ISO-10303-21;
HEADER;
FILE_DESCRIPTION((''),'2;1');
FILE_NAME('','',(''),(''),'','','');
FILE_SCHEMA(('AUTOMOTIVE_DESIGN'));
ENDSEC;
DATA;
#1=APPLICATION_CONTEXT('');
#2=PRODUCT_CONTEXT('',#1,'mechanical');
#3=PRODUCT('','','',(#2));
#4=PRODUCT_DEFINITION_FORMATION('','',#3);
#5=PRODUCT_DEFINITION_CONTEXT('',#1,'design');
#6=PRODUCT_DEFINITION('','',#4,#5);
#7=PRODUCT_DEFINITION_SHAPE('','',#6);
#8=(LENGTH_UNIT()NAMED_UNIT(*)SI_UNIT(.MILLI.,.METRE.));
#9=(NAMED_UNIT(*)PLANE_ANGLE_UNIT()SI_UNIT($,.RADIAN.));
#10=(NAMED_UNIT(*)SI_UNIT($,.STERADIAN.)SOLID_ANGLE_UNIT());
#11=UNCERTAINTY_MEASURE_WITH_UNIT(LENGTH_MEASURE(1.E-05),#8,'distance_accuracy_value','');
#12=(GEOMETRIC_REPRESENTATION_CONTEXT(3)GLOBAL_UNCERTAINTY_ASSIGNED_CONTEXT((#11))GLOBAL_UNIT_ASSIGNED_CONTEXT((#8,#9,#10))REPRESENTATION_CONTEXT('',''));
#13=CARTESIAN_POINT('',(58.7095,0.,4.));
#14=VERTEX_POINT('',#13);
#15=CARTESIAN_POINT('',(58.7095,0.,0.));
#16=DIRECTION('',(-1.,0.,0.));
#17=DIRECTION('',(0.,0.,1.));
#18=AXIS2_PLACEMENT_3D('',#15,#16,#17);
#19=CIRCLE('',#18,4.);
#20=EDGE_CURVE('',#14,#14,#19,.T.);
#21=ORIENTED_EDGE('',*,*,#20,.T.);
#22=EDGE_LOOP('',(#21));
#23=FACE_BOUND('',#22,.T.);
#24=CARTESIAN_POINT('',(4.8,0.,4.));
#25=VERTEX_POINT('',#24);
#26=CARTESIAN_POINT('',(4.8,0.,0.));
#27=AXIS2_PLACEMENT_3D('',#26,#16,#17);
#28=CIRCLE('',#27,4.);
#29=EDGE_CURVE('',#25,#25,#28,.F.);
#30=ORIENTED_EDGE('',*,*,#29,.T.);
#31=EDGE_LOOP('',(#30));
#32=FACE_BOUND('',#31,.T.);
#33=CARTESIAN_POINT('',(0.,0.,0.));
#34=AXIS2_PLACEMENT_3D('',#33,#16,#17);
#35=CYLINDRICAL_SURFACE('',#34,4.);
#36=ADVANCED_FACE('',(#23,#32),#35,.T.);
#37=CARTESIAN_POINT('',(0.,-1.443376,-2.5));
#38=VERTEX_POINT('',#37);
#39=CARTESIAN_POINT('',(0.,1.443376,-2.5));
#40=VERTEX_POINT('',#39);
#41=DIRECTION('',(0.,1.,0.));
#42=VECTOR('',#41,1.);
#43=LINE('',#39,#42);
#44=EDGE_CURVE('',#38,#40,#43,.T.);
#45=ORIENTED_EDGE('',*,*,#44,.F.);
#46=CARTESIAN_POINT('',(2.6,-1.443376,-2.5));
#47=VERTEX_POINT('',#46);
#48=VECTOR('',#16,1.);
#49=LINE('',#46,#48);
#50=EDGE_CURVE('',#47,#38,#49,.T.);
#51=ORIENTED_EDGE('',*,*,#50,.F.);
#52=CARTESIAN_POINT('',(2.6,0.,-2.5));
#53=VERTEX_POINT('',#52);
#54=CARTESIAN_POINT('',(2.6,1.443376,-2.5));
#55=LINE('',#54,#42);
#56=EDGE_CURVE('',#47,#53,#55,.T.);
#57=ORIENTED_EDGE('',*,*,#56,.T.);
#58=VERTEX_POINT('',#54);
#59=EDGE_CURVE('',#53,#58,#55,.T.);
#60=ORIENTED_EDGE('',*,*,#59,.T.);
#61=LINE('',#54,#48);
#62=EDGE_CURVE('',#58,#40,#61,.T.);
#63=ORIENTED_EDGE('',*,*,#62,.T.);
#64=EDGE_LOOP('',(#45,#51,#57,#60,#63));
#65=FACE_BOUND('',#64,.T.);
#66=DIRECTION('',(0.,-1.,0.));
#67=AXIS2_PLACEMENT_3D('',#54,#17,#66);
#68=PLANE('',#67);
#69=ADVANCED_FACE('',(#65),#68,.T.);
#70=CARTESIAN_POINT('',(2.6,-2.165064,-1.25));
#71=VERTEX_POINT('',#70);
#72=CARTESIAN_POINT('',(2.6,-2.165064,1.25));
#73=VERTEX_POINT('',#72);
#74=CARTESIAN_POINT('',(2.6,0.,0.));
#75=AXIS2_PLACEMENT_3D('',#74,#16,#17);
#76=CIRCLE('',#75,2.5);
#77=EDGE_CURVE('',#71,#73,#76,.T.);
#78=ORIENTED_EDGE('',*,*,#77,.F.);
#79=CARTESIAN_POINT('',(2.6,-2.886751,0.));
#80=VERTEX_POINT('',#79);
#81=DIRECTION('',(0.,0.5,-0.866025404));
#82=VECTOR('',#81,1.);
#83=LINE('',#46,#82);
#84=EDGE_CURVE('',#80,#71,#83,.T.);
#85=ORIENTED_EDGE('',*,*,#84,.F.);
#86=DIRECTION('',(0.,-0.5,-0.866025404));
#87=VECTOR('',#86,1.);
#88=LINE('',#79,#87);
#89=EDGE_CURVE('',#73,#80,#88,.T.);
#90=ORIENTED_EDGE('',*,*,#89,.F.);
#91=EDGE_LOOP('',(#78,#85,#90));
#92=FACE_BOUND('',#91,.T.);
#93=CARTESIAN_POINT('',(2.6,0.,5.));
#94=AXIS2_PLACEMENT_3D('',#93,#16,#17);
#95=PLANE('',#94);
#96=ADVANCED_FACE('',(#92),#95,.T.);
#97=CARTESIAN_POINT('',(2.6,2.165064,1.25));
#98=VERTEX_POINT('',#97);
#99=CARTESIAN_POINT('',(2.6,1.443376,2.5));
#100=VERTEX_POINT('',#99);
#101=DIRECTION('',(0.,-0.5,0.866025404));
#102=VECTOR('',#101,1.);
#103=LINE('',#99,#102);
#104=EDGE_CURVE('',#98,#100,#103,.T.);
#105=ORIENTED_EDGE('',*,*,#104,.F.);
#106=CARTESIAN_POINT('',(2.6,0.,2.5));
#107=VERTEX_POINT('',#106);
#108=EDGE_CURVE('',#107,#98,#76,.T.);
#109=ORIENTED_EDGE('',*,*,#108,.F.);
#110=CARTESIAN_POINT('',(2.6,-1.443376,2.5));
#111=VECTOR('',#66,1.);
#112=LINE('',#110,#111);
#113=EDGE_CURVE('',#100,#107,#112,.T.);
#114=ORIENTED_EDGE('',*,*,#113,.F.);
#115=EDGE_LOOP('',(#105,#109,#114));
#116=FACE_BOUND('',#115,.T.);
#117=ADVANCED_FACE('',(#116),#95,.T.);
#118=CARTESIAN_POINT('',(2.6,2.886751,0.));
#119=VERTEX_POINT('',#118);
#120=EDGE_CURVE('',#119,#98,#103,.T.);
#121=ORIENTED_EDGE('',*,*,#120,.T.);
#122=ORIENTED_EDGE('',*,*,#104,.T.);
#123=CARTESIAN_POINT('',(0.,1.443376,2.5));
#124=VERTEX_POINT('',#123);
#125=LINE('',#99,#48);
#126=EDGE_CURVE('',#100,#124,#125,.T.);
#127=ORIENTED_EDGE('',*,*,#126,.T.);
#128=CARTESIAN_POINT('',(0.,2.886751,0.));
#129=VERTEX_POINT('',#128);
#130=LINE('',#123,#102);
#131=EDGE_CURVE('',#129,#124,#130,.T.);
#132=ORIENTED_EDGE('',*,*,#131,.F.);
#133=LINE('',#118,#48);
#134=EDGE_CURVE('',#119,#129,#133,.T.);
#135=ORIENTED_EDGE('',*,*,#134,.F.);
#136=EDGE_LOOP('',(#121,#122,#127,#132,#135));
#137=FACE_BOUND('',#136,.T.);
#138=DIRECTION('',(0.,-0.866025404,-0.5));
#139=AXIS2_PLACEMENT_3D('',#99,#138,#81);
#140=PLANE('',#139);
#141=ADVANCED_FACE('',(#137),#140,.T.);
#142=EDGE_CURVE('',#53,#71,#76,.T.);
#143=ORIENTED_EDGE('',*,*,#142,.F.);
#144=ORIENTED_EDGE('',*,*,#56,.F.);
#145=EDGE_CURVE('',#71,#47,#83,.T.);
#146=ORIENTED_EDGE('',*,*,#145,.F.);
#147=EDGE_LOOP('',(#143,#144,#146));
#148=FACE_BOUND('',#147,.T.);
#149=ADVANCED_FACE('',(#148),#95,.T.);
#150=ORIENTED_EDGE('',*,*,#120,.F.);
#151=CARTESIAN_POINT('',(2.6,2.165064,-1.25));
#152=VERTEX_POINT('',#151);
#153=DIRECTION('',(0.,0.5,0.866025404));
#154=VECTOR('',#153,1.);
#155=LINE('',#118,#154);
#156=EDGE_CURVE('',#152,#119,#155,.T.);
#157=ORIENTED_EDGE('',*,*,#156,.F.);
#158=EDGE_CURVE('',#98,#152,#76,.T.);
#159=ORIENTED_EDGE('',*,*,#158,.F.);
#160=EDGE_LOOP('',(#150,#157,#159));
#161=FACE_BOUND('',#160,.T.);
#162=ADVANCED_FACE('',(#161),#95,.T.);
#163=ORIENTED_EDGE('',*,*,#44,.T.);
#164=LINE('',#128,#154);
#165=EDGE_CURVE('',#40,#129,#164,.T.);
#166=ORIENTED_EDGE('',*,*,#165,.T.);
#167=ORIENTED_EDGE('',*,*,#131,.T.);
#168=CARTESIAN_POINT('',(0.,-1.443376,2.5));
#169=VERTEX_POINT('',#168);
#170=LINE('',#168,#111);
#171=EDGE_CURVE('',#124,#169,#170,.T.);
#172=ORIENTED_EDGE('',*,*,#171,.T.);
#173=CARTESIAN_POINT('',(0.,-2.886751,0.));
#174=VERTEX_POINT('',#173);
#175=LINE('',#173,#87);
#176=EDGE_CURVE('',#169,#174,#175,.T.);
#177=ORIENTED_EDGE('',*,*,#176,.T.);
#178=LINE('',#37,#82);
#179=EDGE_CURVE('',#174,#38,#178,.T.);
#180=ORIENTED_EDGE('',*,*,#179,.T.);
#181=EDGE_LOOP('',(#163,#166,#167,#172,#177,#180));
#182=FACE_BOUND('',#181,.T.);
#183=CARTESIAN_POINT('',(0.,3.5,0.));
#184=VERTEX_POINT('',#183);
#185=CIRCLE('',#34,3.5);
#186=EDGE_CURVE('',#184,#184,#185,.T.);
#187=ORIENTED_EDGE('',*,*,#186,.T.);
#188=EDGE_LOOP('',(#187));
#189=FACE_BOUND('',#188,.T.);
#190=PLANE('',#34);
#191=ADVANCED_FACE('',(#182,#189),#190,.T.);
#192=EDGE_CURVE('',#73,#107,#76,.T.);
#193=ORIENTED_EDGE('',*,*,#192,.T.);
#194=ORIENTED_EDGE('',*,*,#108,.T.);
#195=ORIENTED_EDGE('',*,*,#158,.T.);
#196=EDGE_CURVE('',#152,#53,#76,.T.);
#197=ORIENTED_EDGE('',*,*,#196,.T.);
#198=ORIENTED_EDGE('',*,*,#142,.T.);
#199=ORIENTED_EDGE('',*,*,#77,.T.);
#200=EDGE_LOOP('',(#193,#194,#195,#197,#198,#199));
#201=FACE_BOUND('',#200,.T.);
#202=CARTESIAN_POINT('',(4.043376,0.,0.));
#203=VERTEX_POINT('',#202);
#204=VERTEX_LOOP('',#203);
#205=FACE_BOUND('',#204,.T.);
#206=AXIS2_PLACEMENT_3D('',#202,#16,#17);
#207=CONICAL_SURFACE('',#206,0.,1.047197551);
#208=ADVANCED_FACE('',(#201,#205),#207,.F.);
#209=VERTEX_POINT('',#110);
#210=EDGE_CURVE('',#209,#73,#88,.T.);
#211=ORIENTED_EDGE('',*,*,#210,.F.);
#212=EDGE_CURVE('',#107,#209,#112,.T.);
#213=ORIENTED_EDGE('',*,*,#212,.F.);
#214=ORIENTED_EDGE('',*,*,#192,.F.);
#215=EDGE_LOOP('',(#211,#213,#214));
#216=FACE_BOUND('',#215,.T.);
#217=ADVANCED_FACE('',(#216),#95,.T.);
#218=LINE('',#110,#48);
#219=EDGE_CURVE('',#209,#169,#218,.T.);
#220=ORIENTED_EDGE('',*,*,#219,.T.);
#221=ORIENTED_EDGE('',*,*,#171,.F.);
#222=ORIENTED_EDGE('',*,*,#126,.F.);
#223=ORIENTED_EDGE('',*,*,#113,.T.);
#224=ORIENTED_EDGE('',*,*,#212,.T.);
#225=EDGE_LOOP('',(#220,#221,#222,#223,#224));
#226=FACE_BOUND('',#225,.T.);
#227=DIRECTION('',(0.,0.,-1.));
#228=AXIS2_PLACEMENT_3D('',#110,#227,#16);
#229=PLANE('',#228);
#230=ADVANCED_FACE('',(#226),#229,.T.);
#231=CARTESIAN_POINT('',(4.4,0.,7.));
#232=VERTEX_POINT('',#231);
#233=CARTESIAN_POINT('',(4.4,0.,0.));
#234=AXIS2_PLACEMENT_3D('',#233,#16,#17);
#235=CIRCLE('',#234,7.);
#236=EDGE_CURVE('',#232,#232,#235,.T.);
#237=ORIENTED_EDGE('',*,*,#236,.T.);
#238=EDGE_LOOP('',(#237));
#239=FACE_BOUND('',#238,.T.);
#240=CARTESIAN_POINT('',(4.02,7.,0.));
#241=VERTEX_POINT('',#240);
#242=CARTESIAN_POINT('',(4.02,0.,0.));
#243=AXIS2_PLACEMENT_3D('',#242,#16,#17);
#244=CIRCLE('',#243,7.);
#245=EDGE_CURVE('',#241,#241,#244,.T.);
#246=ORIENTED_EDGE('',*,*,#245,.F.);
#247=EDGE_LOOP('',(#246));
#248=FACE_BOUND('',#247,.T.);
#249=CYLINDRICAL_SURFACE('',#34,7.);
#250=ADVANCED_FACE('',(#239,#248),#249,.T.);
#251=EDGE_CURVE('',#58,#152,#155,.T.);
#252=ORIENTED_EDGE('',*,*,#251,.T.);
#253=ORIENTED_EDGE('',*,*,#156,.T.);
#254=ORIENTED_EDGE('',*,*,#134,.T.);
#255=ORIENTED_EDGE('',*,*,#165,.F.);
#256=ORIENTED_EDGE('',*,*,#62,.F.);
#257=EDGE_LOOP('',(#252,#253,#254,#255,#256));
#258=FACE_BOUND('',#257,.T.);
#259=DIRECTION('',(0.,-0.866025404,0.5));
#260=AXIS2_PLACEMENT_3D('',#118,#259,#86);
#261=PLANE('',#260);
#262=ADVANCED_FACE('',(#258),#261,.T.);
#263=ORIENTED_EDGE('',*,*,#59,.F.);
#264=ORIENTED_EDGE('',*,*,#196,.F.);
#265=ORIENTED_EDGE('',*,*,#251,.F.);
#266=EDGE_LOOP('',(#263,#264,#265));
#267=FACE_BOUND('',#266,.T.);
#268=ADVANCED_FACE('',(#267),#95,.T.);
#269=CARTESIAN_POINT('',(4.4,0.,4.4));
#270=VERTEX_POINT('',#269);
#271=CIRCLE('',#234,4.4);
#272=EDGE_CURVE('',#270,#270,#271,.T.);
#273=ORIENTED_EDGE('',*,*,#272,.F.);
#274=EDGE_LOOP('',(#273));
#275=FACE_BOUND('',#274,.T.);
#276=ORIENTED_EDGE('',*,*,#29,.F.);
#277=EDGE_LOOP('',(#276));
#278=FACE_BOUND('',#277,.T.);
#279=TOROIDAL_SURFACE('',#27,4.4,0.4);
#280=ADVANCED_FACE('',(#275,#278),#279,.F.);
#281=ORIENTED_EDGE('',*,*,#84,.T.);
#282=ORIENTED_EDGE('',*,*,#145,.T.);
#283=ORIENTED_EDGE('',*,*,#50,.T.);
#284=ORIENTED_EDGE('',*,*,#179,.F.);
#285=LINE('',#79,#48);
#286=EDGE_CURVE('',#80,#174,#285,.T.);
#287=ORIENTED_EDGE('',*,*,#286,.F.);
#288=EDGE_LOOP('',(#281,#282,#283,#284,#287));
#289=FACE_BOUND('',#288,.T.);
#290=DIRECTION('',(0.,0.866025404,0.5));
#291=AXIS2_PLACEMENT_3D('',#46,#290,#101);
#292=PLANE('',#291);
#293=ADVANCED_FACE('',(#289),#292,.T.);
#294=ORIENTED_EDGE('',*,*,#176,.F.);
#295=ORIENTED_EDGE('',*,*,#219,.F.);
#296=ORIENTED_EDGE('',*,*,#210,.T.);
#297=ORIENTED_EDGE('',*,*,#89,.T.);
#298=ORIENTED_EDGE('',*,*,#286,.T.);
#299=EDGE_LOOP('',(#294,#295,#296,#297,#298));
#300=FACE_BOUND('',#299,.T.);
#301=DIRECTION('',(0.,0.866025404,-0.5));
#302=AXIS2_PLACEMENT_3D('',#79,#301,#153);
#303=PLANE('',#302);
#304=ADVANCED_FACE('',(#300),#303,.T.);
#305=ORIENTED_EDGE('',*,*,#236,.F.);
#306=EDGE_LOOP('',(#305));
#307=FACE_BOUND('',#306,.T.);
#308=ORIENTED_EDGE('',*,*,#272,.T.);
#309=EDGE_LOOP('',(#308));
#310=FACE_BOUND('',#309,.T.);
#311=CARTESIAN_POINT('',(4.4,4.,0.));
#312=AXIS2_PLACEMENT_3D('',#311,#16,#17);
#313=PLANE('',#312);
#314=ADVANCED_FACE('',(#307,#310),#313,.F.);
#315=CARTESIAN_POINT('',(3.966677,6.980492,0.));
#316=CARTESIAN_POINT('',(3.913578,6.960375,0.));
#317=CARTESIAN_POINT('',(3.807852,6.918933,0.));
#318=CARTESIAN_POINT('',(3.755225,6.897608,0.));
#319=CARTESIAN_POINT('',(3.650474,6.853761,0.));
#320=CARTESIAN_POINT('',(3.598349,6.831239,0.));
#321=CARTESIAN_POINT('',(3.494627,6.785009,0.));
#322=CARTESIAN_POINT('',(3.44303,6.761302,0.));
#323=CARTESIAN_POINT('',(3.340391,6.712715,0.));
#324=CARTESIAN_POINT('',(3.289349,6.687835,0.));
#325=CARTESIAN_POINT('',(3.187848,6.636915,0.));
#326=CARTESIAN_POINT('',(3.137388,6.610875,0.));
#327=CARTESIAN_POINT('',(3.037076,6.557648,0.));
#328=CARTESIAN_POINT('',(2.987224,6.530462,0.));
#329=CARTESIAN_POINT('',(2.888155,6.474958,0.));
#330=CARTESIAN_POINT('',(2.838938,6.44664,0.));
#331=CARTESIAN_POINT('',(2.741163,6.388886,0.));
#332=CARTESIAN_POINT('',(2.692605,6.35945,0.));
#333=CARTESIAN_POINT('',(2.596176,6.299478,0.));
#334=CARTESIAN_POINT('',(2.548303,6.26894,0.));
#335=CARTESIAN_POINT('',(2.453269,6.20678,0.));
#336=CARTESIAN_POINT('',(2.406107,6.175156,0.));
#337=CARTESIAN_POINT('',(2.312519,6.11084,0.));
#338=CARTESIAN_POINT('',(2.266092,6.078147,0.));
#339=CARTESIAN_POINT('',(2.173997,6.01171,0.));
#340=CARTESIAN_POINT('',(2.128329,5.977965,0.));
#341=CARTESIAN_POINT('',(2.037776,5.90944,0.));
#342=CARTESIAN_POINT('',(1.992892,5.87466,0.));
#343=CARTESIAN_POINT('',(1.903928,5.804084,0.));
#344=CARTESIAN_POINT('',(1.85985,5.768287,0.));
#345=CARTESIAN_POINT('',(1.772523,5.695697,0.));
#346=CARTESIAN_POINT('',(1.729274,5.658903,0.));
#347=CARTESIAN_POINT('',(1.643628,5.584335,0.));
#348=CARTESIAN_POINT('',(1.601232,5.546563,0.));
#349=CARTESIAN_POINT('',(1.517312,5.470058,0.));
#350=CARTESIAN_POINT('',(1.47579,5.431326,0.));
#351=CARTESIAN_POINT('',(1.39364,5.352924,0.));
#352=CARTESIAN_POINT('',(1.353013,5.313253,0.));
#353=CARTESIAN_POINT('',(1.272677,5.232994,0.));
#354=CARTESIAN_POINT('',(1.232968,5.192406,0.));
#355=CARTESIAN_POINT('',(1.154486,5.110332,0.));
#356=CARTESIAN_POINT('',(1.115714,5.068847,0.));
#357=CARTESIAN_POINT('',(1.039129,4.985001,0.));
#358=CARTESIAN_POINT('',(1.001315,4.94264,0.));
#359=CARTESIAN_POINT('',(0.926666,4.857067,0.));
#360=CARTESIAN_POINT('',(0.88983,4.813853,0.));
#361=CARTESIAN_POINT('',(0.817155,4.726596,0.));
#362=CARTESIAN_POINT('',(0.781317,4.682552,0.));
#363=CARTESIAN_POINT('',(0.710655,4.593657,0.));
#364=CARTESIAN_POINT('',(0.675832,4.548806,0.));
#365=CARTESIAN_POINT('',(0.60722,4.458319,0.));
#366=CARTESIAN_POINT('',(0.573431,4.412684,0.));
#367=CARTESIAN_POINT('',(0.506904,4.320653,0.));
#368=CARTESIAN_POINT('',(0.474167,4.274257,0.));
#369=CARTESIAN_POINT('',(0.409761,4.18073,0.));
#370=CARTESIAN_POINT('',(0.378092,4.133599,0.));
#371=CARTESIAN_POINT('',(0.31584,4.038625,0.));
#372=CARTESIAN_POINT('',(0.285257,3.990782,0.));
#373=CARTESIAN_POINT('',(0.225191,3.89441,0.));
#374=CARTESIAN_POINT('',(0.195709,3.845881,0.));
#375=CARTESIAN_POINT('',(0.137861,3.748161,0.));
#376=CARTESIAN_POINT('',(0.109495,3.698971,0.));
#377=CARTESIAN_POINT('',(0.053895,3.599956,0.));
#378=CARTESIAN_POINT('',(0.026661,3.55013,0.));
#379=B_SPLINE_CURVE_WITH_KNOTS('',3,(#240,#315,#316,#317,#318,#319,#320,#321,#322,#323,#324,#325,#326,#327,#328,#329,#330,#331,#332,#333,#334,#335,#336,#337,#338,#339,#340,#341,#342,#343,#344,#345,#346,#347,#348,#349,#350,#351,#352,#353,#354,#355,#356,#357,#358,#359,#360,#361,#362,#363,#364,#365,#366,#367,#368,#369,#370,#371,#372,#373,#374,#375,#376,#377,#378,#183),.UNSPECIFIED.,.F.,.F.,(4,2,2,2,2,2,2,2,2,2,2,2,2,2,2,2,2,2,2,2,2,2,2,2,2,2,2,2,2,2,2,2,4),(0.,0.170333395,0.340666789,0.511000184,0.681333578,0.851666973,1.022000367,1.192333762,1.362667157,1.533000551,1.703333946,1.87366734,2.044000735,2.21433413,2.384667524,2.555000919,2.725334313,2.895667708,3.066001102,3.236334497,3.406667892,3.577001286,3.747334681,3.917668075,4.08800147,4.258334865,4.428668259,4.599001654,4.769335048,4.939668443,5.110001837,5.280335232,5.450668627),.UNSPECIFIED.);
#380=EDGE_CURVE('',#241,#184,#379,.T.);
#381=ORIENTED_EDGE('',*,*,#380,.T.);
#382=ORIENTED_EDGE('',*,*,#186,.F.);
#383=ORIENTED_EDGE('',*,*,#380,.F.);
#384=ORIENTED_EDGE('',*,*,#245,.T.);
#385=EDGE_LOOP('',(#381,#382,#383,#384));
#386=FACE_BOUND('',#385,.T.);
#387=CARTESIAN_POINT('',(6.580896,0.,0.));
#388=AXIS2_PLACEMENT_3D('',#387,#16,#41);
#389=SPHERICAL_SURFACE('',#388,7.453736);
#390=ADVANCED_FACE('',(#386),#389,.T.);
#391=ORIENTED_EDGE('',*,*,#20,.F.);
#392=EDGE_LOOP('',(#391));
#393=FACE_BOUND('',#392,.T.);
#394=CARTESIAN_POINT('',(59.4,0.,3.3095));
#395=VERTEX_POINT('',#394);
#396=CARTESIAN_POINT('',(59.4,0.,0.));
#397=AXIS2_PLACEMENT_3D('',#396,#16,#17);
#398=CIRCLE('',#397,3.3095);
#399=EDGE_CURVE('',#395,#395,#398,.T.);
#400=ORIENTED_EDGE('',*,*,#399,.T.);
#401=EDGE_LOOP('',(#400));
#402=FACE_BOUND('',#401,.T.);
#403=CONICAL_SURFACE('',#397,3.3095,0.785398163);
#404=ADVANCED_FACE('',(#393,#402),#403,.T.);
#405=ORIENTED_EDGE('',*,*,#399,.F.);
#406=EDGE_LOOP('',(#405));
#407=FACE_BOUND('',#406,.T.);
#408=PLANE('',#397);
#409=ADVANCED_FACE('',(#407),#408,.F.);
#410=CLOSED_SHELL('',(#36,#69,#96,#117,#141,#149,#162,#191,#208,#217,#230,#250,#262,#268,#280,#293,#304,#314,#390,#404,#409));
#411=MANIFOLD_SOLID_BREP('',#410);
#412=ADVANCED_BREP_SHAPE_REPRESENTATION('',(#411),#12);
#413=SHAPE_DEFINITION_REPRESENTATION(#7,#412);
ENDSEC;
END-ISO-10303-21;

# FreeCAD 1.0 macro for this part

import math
import FreeCAD as App
import Part
import Sketcher
from FreeCAD import Vector
Q = App.Units.Quantity


def edges_at(feature, points):
    """Names of the edges that pass closest to the given points."""
    edges = feature.Shape.Edges
    near = lambda p: min(range(len(edges)), key=lambda i: edges[i].distToShape(Part.Vertex(*p))[0])
    return sorted({f"Edge{near(p) + 1}" for p in points})


def add_polygon(sketch, points):
    """Adds a closed chain of lines whose ends are joined by coincident constraints."""
    first, n = sketch.GeometryCount, len(points)
    for a, b in zip(points, points[1:] + points[:1]):
        sketch.addGeometry(Part.LineSegment(App.Vector(*a, 0), App.Vector(*b, 0)), False)
    for i in range(n):
        sketch.addConstraint(Sketcher.Constraint("Coincident", first + i, 2, first + (i + 1) % n, 1))

doc = App.newDocument("Part")
body = doc.addObject("PartDesign::Body", "Body")

# Sketch on XY plane
sketch1 = body.newObject("Sketcher::SketchObject", "Sketch")
sketch1.AttachmentSupport = (doc.getObject("XY_Plane"), [""])
sketch1.MapMode = "FlatFace"
sketch1.addGeometry([
    Part.LineSegment(Vector(59.4, 0, 0), Vector(59.4, 3.3095, 0)),  # 0
    Part.LineSegment(Vector(59.4, 3.3095, 0), Vector(58.7095, 4, 0)),  # 1
    Part.LineSegment(Vector(58.7095, 4, 0), Vector(4.4, 4, 0)),  # 2
    Part.LineSegment(Vector(4.4, 4, 0), Vector(4.4, 7, 0)),  # 3
    Part.LineSegment(Vector(4.4, 7, 0), Vector(4.02, 7, 0)),  # 4
    Part.ArcOfCircle(Part.Circle(Vector(6.580896, 0, 0), Vector(0, 0, 1), 7.453736), math.radians(110.094653), math.radians(151.994056)),  # 5
    Part.LineSegment(Vector(0, 3.5, 0), Vector(0, 0, 0)),  # 6
    Part.LineSegment(Vector(0, 0, 0), Vector(59.4, 0, 0)),  # 7
], False)
sketch1.addConstraint([
    Sketcher.Constraint("Coincident", 0, 2, 1, 1),
    Sketcher.Constraint("Coincident", 1, 2, 2, 1),
    Sketcher.Constraint("Coincident", 2, 2, 3, 1),
    Sketcher.Constraint("Coincident", 3, 2, 4, 1),
    Sketcher.Constraint("Coincident", 4, 2, 5, 1),
    Sketcher.Constraint("Coincident", 5, 2, 6, 1),
    Sketcher.Constraint("Coincident", 6, 2, 7, 1),
    Sketcher.Constraint("Coincident", 7, 2, 0, 1),
    Sketcher.Constraint("Vertical", 0),
    Sketcher.Constraint("Horizontal", 2),
    Sketcher.Constraint("Vertical", 3),
    Sketcher.Constraint("Horizontal", 4),
    Sketcher.Constraint("Vertical", 6),
    Sketcher.Constraint("Horizontal", 7),
    Sketcher.Constraint("Coincident", 6, 2, -1, 1),
    Sketcher.Constraint("PointOnObject", 5, 3, -1),
    Sketcher.Constraint("DistanceY", 3, 1, 3, 2, Q("3 mm")),
    Sketcher.Constraint("Angle", 1, Q("135 deg")),
    Sketcher.Constraint("DistanceX", 7, 1, 7, 2, Q("59.4 mm")),
    Sketcher.Constraint("DistanceY", 6, 2, 6, 1, Q("3.5 mm")),
    Sketcher.Constraint("DistanceY", -1, 1, 1, 2, Q("4 mm")),
    Sketcher.Constraint("DistanceX", 2, 2, 0, 2, Q("55 mm")),
    Sketcher.Constraint("DistanceX", 4, 2, 4, 1, Q("0.38 mm")),
    Sketcher.Constraint("DistanceX", 2, 2, 2, 1, Q("54.3095 mm")),
])
revolution = body.newObject("PartDesign::Revolution", "Revolution")
revolution.Profile = sketch1
revolution.ReferenceAxis = (sketch1, ["H_Axis"])
revolution.Angle = 360
doc.recompute()

fillet = body.newObject("PartDesign::Fillet", "Fillet")
fillet.Base = (revolution, edges_at(revolution, [(4.4, 0, -4)]))
fillet.Radius = 0.4

# Sketch on XY plane
sketch2 = body.newObject("Sketcher::SketchObject", "Sketch001")
sketch2.AttachmentSupport = (doc.getObject("XY_Plane"), [""])
sketch2.MapMode = "FlatFace"
add_polygon(sketch2, [(2.6, 2.5), (0, 2.5), (0, 0), (4.043376, 0)])  # lines 0-3
sketch2.addConstraint([
    Sketcher.Constraint("Horizontal", 0),
    Sketcher.Constraint("Vertical", 1),
    Sketcher.Constraint("Horizontal", 2),
    Sketcher.Constraint("Coincident", 1, 2, -1, 1),
    Sketcher.Constraint("Angle", 3, Q("120 deg")),
    Sketcher.Constraint("DistanceX", 0, 2, 0, 1, Q("2.6 mm")),
    Sketcher.Constraint("DistanceY", 1, 2, 1, 1, Q("2.5 mm")),
])
groove = body.newObject("PartDesign::Groove", "Groove")
groove.Profile = sketch2
groove.ReferenceAxis = (sketch2, ["H_Axis"])
groove.Angle = 360

# Sketch on YZ plane
sketch3 = body.newObject("Sketcher::SketchObject", "Sketch002")
sketch3.AttachmentSupport = (doc.getObject("YZ_Plane"), [""])
sketch3.MapMode = "FlatFace"
add_polygon(sketch3, [(1.443376, 2.5), (-1.443376, 2.5), (-2.886751, 0), (-1.443376, -2.5), (1.443376, -2.5), (2.886751, 0)])  # lines 0-5
sketch3.addConstraint([
    Sketcher.Constraint("Horizontal", 0),
    Sketcher.Constraint("Horizontal", 3),
    Sketcher.Constraint("Symmetric", 0, 2, 3, 2, -1, 1),
    Sketcher.Constraint("Symmetric", 1, 2, 4, 2, -1, 1),
    Sketcher.Constraint("PointOnObject", 1, 2, -1),
    Sketcher.Constraint("Parallel", 2, 5),
    Sketcher.Constraint("Vertical", 0, 2, 2, 2),
    Sketcher.Constraint("Angle", 1, Q("-120 deg")),
    Sketcher.Constraint("DistanceY", 2, 2, 0, 2, Q("5 mm")),
    Sketcher.Constraint("DistanceX", 0, 2, 0, 1, Q("2.886751 mm")),
])
pocket1 = body.newObject("PartDesign::Pocket", "Pocket")
pocket1.Profile = sketch3
pocket1.Length = 2.6
pocket1.Reversed = True

doc.recompute()
